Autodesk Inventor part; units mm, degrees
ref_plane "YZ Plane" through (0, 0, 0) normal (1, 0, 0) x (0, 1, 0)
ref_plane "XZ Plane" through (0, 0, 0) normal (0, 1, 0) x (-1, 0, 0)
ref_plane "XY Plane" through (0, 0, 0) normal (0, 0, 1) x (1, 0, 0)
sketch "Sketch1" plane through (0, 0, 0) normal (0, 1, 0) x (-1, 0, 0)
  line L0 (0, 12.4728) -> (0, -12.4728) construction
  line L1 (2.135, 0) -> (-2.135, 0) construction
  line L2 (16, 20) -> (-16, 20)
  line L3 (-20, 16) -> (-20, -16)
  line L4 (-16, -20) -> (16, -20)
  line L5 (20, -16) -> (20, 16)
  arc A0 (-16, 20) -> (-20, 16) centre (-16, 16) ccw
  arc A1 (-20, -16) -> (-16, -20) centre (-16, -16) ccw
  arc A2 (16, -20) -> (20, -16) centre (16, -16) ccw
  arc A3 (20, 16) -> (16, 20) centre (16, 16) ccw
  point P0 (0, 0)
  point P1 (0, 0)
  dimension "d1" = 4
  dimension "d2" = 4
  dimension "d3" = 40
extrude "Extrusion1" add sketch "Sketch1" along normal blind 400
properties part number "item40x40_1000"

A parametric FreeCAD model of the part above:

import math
import FreeCAD as App
import Part
import Sketcher

doc = App.newDocument("Part")
params = doc.addObject("Spreadsheet::Sheet", "Params")
for row, (alias, value) in enumerate([
    ("sketch1_radius", "4 mm"),
    ("sketch1_width", "32 mm"),
    ("pad1_length", "400 mm"),
], start=1):
    params.set(f"A{row}", alias)
    params.set(f"B{row}", "=" + value)
    params.setAlias(f"B{row}", alias)

body = doc.addObject("PartDesign::Body", "Body")

sketch1 = body.newObject("Sketcher::SketchObject", "Sketch")
sketch1.AttachmentSupport = (doc.getObject("XZ_Plane"), [""])
sketch1.MapMode = "FlatFace"
sketch1.addGeometry(Part.ArcOfCircle(Part.Circle(App.Vector(-16, 16, 0), App.Vector(0, 0, 1), 4), math.radians(90), math.radians(180)), False)
sketch1.addGeometry(Part.LineSegment(App.Vector(-16, 20, 0), App.Vector(16, 20, 0)), False)
sketch1.addGeometry(Part.ArcOfCircle(Part.Circle(App.Vector(16, 16, 0), App.Vector(0, 0, 1), 4), math.radians(0), math.radians(90)), False)
sketch1.addGeometry(Part.LineSegment(App.Vector(20, 16, 0), App.Vector(20, -16, 0)), False)
sketch1.addGeometry(Part.ArcOfCircle(Part.Circle(App.Vector(16, -16, 0), App.Vector(0, 0, 1), 4), math.radians(-90), math.radians(0)), False)
sketch1.addGeometry(Part.LineSegment(App.Vector(16, -20, 0), App.Vector(-16, -20, 0)), False)
sketch1.addGeometry(Part.ArcOfCircle(Part.Circle(App.Vector(-16, -16, 0), App.Vector(0, 0, 1), 4), math.radians(180), math.radians(270)), False)
sketch1.addGeometry(Part.LineSegment(App.Vector(-20, -16, 0), App.Vector(-20, 16, 0)), False)
sketch1.addConstraint(Sketcher.Constraint("Tangent", 0, 1, 1, 1))
sketch1.addConstraint(Sketcher.Constraint("Tangent", 1, 2, 2, 2))
sketch1.addConstraint(Sketcher.Constraint("Tangent", 2, 1, 3, 1))
sketch1.addConstraint(Sketcher.Constraint("Tangent", 3, 2, 4, 2))
sketch1.addConstraint(Sketcher.Constraint("Tangent", 4, 1, 5, 1))
sketch1.addConstraint(Sketcher.Constraint("Tangent", 5, 2, 6, 2))
sketch1.addConstraint(Sketcher.Constraint("Tangent", 6, 1, 7, 1))
sketch1.addConstraint(Sketcher.Constraint("Tangent", 7, 2, 0, 2))
sketch1.addConstraint(Sketcher.Constraint("Horizontal", 1))
sketch1.addConstraint(Sketcher.Constraint("Vertical", 3))
sketch1.addConstraint(Sketcher.Constraint("Horizontal", 5))
sketch1.addConstraint(Sketcher.Constraint("Vertical", 7))
sketch1.addConstraint(Sketcher.Constraint("Equal", 0, 2))
sketch1.addConstraint(Sketcher.Constraint("Equal", 2, 4))
sketch1.addConstraint(Sketcher.Constraint("Equal", 4, 6))
sketch1.addConstraint(Sketcher.Constraint("Symmetric", 0, 3, 4, 3, -1, 1))
sketch1.addConstraint(Sketcher.Constraint("Equal", 5, 3))
sketch1.addConstraint(Sketcher.Constraint("Radius", 0, 4.0))
sketch1.addConstraint(Sketcher.Constraint("DistanceX", 1, 1, 1, 2, 32.0))
sketch1.setExpression("Constraints[17]", "Params.sketch1_radius")
sketch1.setExpression("Constraints[18]", "Params.sketch1_width")
pad1 = body.newObject("PartDesign::Pad", "Pad")
pad1.Profile = sketch1
pad1.setExpression("Length", "Params.pad1_length")
pad1.Reversed = True

doc.recompute()
